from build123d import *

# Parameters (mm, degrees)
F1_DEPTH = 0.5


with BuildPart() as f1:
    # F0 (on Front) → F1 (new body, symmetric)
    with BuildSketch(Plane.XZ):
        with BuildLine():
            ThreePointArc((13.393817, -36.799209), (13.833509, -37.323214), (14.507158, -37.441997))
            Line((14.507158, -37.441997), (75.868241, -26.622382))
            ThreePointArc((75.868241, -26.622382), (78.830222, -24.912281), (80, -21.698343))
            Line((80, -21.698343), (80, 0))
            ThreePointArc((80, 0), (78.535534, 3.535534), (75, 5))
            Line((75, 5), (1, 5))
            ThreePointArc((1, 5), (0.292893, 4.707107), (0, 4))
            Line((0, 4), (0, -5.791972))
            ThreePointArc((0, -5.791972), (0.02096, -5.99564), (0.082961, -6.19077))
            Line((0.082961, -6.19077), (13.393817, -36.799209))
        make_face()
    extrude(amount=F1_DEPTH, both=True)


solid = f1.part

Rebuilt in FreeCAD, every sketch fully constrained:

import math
import FreeCAD as App
import Part
import Sketcher
Q = App.Units.Quantity

doc = App.newDocument("Part")
params = doc.addObject("Spreadsheet::Sheet", "Params")
for row, (alias, value) in enumerate([
    ("sketch1_radius", "1.000001 mm"),
    ("sketch1_radius2", "5.000001 mm"),
    ("sketch1_radius3", "5 mm"),
    ("sketch1_radius4", "0.999999 mm"),
    ("sketch1_width", "74 mm"),
    ("pad1_length", "1 mm"),
], start=1):
    params.set(f"A{row}", alias)
    params.set(f"B{row}", "=" + value)
    params.setAlias(f"B{row}", alias)

body = doc.addObject("PartDesign::Body", "Body")

# Sketch on XZ plane
sketch1 = body.newObject("Sketcher::SketchObject", "Sketch")
sketch1.AttachmentSupport = (doc.getObject("XZ_Plane"), [""])
sketch1.MapMode = "FlatFace"
sketch1.addGeometry(Part.ArcOfCircle(Part.Circle(App.Vector(14.33351, -36.457189, 0), App.Vector(0, 0, 1), 1.000001), math.radians(-159.999995), math.radians(-80.000026)), False)
sketch1.addGeometry(Part.LineSegment(App.Vector(14.507158, -37.441997, 0), App.Vector(75.868241, -26.622382, 0)), False)
sketch1.addGeometry(Part.ArcOfCircle(Part.Circle(App.Vector(74.999999, -21.698342, 0), App.Vector(0, 0, 1), 5.000001), math.radians(-79.999987), math.radians(-0.000008)), False)
sketch1.addGeometry(Part.LineSegment(App.Vector(80, -21.698343, 0), App.Vector(80, 0, 0)), False)
sketch1.addGeometry(Part.ArcOfCircle(Part.Circle(App.Vector(75, 0, 0), App.Vector(0, 0, 1), 5), math.radians(-0.000004), math.radians(90.000004)), False)
sketch1.addGeometry(Part.LineSegment(App.Vector(75, 5, 0), App.Vector(1, 5, 0)), False)
sketch1.addGeometry(Part.ArcOfCircle(Part.Circle(App.Vector(0.999999, 4.000001, 0), App.Vector(0, 0, 1), 0.999999), math.radians(89.999957), math.radians(180.000043)), False)
sketch1.addGeometry(Part.LineSegment(App.Vector(0, 4, 0), App.Vector(0, -5.791972, 0)), False)
sketch1.addGeometry(Part.ArcOfCircle(Part.Circle(App.Vector(1.000005, -5.791971, 0), App.Vector(0, 0, 1), 1.000005), math.radians(-179.999967), math.radians(-156.497032)), False)
sketch1.addGeometry(Part.LineSegment(App.Vector(0.082961, -6.19077, 0), App.Vector(13.393817, -36.799209, 0)), False)
sketch1.addConstraint(Sketcher.Constraint("Coincident", 0, 2, 1, 1))
sketch1.addConstraint(Sketcher.Constraint("Coincident", 1, 2, 2, 1))
sketch1.addConstraint(Sketcher.Constraint("Coincident", 2, 2, 3, 1))
sketch1.addConstraint(Sketcher.Constraint("Coincident", 3, 2, 4, 1))
sketch1.addConstraint(Sketcher.Constraint("Coincident", 4, 2, 5, 1))
sketch1.addConstraint(Sketcher.Constraint("Coincident", 5, 2, 6, 1))
sketch1.addConstraint(Sketcher.Constraint("Coincident", 6, 2, 7, 1))
sketch1.addConstraint(Sketcher.Constraint("Coincident", 7, 2, 8, 1))
sketch1.addConstraint(Sketcher.Constraint("Coincident", 8, 2, 9, 1))
sketch1.addConstraint(Sketcher.Constraint("Coincident", 9, 2, 0, 1))
sketch1.addConstraint(Sketcher.Constraint("Vertical", 3))
sketch1.addConstraint(Sketcher.Constraint("Horizontal", 5))
sketch1.addConstraint(Sketcher.Constraint("Vertical", 7))
sketch1.addConstraint(Sketcher.Constraint("PointOnObject", 4, 3, -1))
sketch1.addConstraint(Sketcher.Constraint("PointOnObject", 3, 2, -1))
sketch1.addConstraint(Sketcher.Constraint("PointOnObject", 6, 2, -2))
sketch1.addConstraint(Sketcher.Constraint("Radius", 0, Q("1.000001 mm")))
sketch1.addConstraint(Sketcher.Constraint("Radius", 2, Q("5.000001 mm")))
sketch1.addConstraint(Sketcher.Constraint("Radius", 4, Q("5 mm")))
sketch1.addConstraint(Sketcher.Constraint("Radius", 6, Q("0.999999 mm")))
sketch1.addConstraint(Sketcher.Constraint("DistanceX", 5, 2, 5, 1, Q("74 mm")))
sketch1.addConstraint(Sketcher.Constraint("DistanceX", -1, 1, 2, 3, Q("74.999999 mm")))
sketch1.addConstraint(Sketcher.Constraint("DistanceX", -1, 1, 4, 2, Q("75 mm")))
sketch1.addConstraint(Sketcher.Constraint("DistanceY", -1, 1, 6, 2, Q("4 mm")))
sketch1.addConstraint(Sketcher.Constraint("Radius", 8, Q("1.000005 mm")))
sketch1.addConstraint(Sketcher.Constraint("DistanceY", 8, 2, 7, 2, Q("0.398798 mm")))
sketch1.addConstraint(Sketcher.Constraint("DistanceY", 8, 2, 8, 3, Q("0.398799 mm")))
sketch1.addConstraint(Sketcher.Constraint("Distance", 9, Q("33.377469 mm")))
sketch1.addConstraint(Sketcher.Constraint("DistanceY", 3, 1, 3, 2, Q("21.698343 mm")))
sketch1.addConstraint(Sketcher.Constraint("DistanceY", 7, 2, 7, 1, Q("9.791972 mm")))
sketch1.addConstraint(Sketcher.Constraint("DistanceX", -1, 1, 0, 3, Q("14.33351 mm")))
sketch1.addConstraint(Sketcher.Constraint("DistanceY", 0, 3, -1, 1, Q("36.457189 mm")))
sketch1.addConstraint(Sketcher.Constraint("DistanceX", -1, 1, 0, 2, Q("14.507158 mm")))
sketch1.addConstraint(Sketcher.Constraint("DistanceX", -1, 1, 1, 2, Q("75.868241 mm")))
sketch1.addConstraint(Sketcher.Constraint("DistanceY", 2, 3, 8, 3, Q("15.906371 mm")))
sketch1.setExpression("Constraints[16]", "Params.sketch1_radius")
sketch1.setExpression("Constraints[17]", "Params.sketch1_radius2")
sketch1.setExpression("Constraints[18]", "Params.sketch1_radius3")
sketch1.setExpression("Constraints[19]", "Params.sketch1_radius4")
sketch1.setExpression("Constraints[20]", "Params.sketch1_width")
pad1 = body.newObject("PartDesign::Pad", "Pad")
pad1.Profile = sketch1
pad1.setExpression("Length", "Params.pad1_length")
pad1.Midplane = True

doc.recompute()
